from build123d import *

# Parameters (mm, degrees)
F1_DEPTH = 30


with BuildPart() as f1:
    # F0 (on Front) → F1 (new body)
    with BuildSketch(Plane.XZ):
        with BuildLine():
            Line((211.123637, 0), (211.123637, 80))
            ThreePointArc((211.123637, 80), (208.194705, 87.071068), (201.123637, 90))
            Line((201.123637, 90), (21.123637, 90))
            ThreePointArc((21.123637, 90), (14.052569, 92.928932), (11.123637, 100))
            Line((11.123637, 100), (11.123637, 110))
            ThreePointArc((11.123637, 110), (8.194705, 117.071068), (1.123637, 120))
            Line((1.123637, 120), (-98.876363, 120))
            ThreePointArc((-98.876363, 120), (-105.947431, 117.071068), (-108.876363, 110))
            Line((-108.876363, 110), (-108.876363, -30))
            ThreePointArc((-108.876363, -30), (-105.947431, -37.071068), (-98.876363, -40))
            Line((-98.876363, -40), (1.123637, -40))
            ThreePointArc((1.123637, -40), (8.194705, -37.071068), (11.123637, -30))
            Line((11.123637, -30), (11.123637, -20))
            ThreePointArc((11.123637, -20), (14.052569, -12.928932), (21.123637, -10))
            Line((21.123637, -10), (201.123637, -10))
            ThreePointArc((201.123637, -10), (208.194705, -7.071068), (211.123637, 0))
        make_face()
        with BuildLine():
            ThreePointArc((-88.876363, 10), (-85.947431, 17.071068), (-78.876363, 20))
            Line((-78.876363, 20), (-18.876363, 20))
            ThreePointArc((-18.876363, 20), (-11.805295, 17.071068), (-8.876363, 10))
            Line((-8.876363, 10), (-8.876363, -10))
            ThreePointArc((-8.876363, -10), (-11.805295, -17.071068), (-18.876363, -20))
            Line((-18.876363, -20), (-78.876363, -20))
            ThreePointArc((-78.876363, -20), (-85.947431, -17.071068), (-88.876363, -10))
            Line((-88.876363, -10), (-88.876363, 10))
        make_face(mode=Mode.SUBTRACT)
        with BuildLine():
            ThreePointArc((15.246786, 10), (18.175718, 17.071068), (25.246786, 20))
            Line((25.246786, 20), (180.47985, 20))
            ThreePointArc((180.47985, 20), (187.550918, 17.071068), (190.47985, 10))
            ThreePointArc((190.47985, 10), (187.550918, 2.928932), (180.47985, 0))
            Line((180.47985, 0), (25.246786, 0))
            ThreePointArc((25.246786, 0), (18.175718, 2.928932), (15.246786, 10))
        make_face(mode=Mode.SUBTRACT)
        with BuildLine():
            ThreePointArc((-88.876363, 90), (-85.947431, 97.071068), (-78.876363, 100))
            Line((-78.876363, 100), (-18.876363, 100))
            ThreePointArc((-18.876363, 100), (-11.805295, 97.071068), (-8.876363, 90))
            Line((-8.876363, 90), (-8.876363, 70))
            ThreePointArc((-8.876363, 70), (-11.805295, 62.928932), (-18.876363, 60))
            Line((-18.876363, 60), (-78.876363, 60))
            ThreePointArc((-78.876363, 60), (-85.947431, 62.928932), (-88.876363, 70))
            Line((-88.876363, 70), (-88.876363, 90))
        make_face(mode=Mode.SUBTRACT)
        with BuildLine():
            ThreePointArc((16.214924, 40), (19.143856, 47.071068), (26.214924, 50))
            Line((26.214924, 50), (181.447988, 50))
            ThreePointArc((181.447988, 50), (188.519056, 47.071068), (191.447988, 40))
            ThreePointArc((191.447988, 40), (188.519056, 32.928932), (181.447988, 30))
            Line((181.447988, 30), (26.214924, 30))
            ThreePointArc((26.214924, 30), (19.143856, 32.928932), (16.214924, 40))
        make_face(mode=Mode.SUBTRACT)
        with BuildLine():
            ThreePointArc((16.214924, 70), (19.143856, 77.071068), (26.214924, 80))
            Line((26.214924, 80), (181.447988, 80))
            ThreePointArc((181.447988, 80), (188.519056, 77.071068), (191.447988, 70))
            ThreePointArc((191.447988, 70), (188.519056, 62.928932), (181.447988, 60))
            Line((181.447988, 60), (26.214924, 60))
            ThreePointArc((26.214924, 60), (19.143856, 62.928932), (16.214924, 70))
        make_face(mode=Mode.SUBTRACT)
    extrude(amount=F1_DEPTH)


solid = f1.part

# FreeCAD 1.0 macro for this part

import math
import FreeCAD as App
import Part
import Sketcher

V = App.Vector
Q = App.Units.Quantity

doc = App.newDocument("Part")
body = doc.addObject("PartDesign::Body", "Body")

# Sketch on XZ plane
sketch1 = body.newObject("Sketcher::SketchObject", "Sketch")
sketch1.AttachmentSupport = (doc.getObject("XZ_Plane"), [""])
sketch1.MapMode = "FlatFace"
sketch1.addGeometry(Part.LineSegment(V(211, 0, 0), V(211, 80, 0)), False)
sketch1.addGeometry(Part.ArcOfCircle(Part.Circle(V(201, 80, 0), V(0, 0, 1), 10), math.radians(0), math.radians(90)), False)
sketch1.addGeometry(Part.LineSegment(V(201, 90, 0), V(21, 90, 0)), False)
sketch1.addGeometry(Part.ArcOfCircle(Part.Circle(V(21, 100, 0), V(0, 0, 1), 10), math.radians(180), math.radians(270)), False)
sketch1.addGeometry(Part.LineSegment(V(11, 100, 0), V(11, 110, 0)), False)
sketch1.addGeometry(Part.ArcOfCircle(Part.Circle(V(1, 110, 0), V(0, 0, 1), 10), math.radians(0), math.radians(90)), False)
sketch1.addGeometry(Part.LineSegment(V(1, 120, 0), V(-99, 120, 0)), False)
sketch1.addGeometry(Part.ArcOfCircle(Part.Circle(V(-99, 110, 0), V(0, 0, 1), 10), math.radians(90), math.radians(180)), False)
sketch1.addGeometry(Part.LineSegment(V(-109, 110, 0), V(-109, -30, 0)), False)
sketch1.addGeometry(Part.ArcOfCircle(Part.Circle(V(-99, -30, 0), V(0, 0, 1), 10), math.radians(180), math.radians(270)), False)
sketch1.addGeometry(Part.LineSegment(V(-99, -40, 0), V(1, -40, 0)), False)
sketch1.addGeometry(Part.ArcOfCircle(Part.Circle(V(1, -30, 0), V(0, 0, 1), 10), math.radians(-90), math.radians(0)), False)
sketch1.addGeometry(Part.LineSegment(V(11, -30, 0), V(11, -20, 0)), False)
sketch1.addGeometry(Part.ArcOfCircle(Part.Circle(V(21, -20, 0), V(0, 0, 1), 10), math.radians(90), math.radians(180)), False)
sketch1.addGeometry(Part.LineSegment(V(21, -10, 0), V(201, -10, 0)), False)
sketch1.addGeometry(Part.ArcOfCircle(Part.Circle(V(201, 0, 0), V(0, 0, 1), 10), math.radians(-90), math.radians(0)), False)
sketch1.addGeometry(Part.LineSegment(V(-89, -10, 0), V(-89, 10, 0)), False)
sketch1.addGeometry(Part.ArcOfCircle(Part.Circle(V(-79, 10, 0), V(0, 0, 1), 10), math.radians(90), math.radians(180)), False)
sketch1.addGeometry(Part.LineSegment(V(-79, 20, 0), V(-19, 20, 0)), False)
sketch1.addGeometry(Part.ArcOfCircle(Part.Circle(V(-19, 10, 0), V(0, 0, 1), 10), math.radians(0), math.radians(90)), False)
sketch1.addGeometry(Part.LineSegment(V(-9, 10, 0), V(-9, -10, 0)), False)
sketch1.addGeometry(Part.ArcOfCircle(Part.Circle(V(-19, -10, 0), V(0, 0, 1), 10), math.radians(-90), math.radians(0)), False)
sketch1.addGeometry(Part.LineSegment(V(-19, -20, 0), V(-79, -20, 0)), False)
sketch1.addGeometry(Part.ArcOfCircle(Part.Circle(V(-79, -10, 0), V(0, 0, 1), 10), math.radians(180), math.radians(270)), False)
sketch1.addGeometry(Part.ArcOfCircle(Part.Circle(V(25, 10, 0), V(0, 0, 1), 10), math.radians(180), math.radians(270)), False)
sketch1.addGeometry(Part.ArcOfCircle(Part.Circle(V(25, 10, 0), V(0, 0, 1), 10), math.radians(90), math.radians(180)), False)
sketch1.addGeometry(Part.LineSegment(V(25, 20, 0), V(180, 20, 0)), False)
sketch1.addGeometry(Part.ArcOfCircle(Part.Circle(V(180, 10, 0), V(0, 0, 1), 10), math.radians(0), math.radians(90)), False)
sketch1.addGeometry(Part.ArcOfCircle(Part.Circle(V(180, 10, 0), V(0, 0, 1), 10), math.radians(-90), math.radians(0)), False)
sketch1.addGeometry(Part.LineSegment(V(180, 0, 0), V(25, 0, 0)), False)
sketch1.addGeometry(Part.ArcOfCircle(Part.Circle(V(26, 40, 0), V(0, 0, 1), 10), math.radians(180), math.radians(270)), False)
sketch1.addGeometry(Part.ArcOfCircle(Part.Circle(V(26, 40, 0), V(0, 0, 1), 10), math.radians(90), math.radians(180)), False)
sketch1.addGeometry(Part.LineSegment(V(26, 50, 0), V(181, 50, 0)), False)
sketch1.addGeometry(Part.ArcOfCircle(Part.Circle(V(181, 40, 0), V(0, 0, 1), 10), math.radians(0), math.radians(90)), False)
sketch1.addGeometry(Part.ArcOfCircle(Part.Circle(V(181, 40, 0), V(0, 0, 1), 10), math.radians(-90), math.radians(0)), False)
sketch1.addGeometry(Part.LineSegment(V(181, 30, 0), V(26, 30, 0)), False)
sketch1.addGeometry(Part.LineSegment(V(-89, 70, 0), V(-89, 90, 0)), False)
sketch1.addGeometry(Part.ArcOfCircle(Part.Circle(V(-79, 90, 0), V(0, 0, 1), 10), math.radians(90), math.radians(180)), False)
sketch1.addGeometry(Part.LineSegment(V(-79, 100, 0), V(-19, 100, 0)), False)
sketch1.addGeometry(Part.ArcOfCircle(Part.Circle(V(-19, 90, 0), V(0, 0, 1), 10), math.radians(0), math.radians(90)), False)
sketch1.addGeometry(Part.LineSegment(V(-9, 90, 0), V(-9, 70, 0)), False)
sketch1.addGeometry(Part.ArcOfCircle(Part.Circle(V(-19, 70, 0), V(0, 0, 1), 10), math.radians(-90), math.radians(0)), False)
sketch1.addGeometry(Part.LineSegment(V(-19, 60, 0), V(-79, 60, 0)), False)
sketch1.addGeometry(Part.ArcOfCircle(Part.Circle(V(-79, 70, 0), V(0, 0, 1), 10), math.radians(180), math.radians(270)), False)
sketch1.addGeometry(Part.ArcOfCircle(Part.Circle(V(26, 70, 0), V(0, 0, 1), 10), math.radians(180), math.radians(270)), False)
sketch1.addGeometry(Part.ArcOfCircle(Part.Circle(V(26, 70, 0), V(0, 0, 1), 10), math.radians(90), math.radians(180)), False)
sketch1.addGeometry(Part.LineSegment(V(26, 80, 0), V(181, 80, 0)), False)
sketch1.addGeometry(Part.ArcOfCircle(Part.Circle(V(181, 70, 0), V(0, 0, 1), 10), math.radians(0), math.radians(90)), False)
sketch1.addGeometry(Part.ArcOfCircle(Part.Circle(V(181, 70, 0), V(0, 0, 1), 10), math.radians(-90), math.radians(0)), False)
sketch1.addGeometry(Part.LineSegment(V(181, 60, 0), V(26, 60, 0)), False)
sketch1.addConstraint(Sketcher.Constraint("Tangent", 0, 2, 1, 1))
sketch1.addConstraint(Sketcher.Constraint("Tangent", 1, 2, 2, 1))
sketch1.addConstraint(Sketcher.Constraint("Tangent", 2, 2, 3, 2))
sketch1.addConstraint(Sketcher.Constraint("Tangent", 3, 1, 4, 1))
sketch1.addConstraint(Sketcher.Constraint("Tangent", 4, 2, 5, 1))
sketch1.addConstraint(Sketcher.Constraint("Tangent", 5, 2, 6, 1))
sketch1.addConstraint(Sketcher.Constraint("Tangent", 6, 2, 7, 1))
sketch1.addConstraint(Sketcher.Constraint("Tangent", 7, 2, 8, 1))
sketch1.addConstraint(Sketcher.Constraint("Tangent", 8, 2, 9, 1))
sketch1.addConstraint(Sketcher.Constraint("Tangent", 9, 2, 10, 1))
sketch1.addConstraint(Sketcher.Constraint("Tangent", 10, 2, 11, 1))
sketch1.addConstraint(Sketcher.Constraint("Tangent", 11, 2, 12, 1))
sketch1.addConstraint(Sketcher.Constraint("Tangent", 12, 2, 13, 2))
sketch1.addConstraint(Sketcher.Constraint("Tangent", 13, 1, 14, 1))
sketch1.addConstraint(Sketcher.Constraint("Tangent", 14, 2, 15, 1))
sketch1.addConstraint(Sketcher.Constraint("Tangent", 15, 2, 0, 1))
sketch1.addConstraint(Sketcher.Constraint("Tangent", 16, 2, 17, 2))
sketch1.addConstraint(Sketcher.Constraint("Tangent", 17, 1, 18, 1))
sketch1.addConstraint(Sketcher.Constraint("Tangent", 18, 2, 19, 2))
sketch1.addConstraint(Sketcher.Constraint("Tangent", 19, 1, 20, 1))
sketch1.addConstraint(Sketcher.Constraint("Tangent", 20, 2, 21, 2))
sketch1.addConstraint(Sketcher.Constraint("Tangent", 21, 1, 22, 1))
sketch1.addConstraint(Sketcher.Constraint("Tangent", 22, 2, 23, 2))
sketch1.addConstraint(Sketcher.Constraint("Tangent", 23, 1, 16, 1))
sketch1.addConstraint(Sketcher.Constraint("Tangent", 24, 1, 25, 2))
sketch1.addConstraint(Sketcher.Constraint("Tangent", 25, 1, 26, 1))
sketch1.addConstraint(Sketcher.Constraint("Tangent", 26, 2, 27, 2))
sketch1.addConstraint(Sketcher.Constraint("Tangent", 27, 1, 28, 2))
sketch1.addConstraint(Sketcher.Constraint("Tangent", 28, 1, 29, 1))
sketch1.addConstraint(Sketcher.Constraint("Tangent", 29, 2, 24, 2))
sketch1.addConstraint(Sketcher.Constraint("Tangent", 30, 1, 31, 2))
sketch1.addConstraint(Sketcher.Constraint("Tangent", 31, 1, 32, 1))
sketch1.addConstraint(Sketcher.Constraint("Tangent", 32, 2, 33, 2))
sketch1.addConstraint(Sketcher.Constraint("Tangent", 33, 1, 34, 2))
sketch1.addConstraint(Sketcher.Constraint("Tangent", 34, 1, 35, 1))
sketch1.addConstraint(Sketcher.Constraint("Tangent", 35, 2, 30, 2))
sketch1.addConstraint(Sketcher.Constraint("Tangent", 36, 2, 37, 2))
sketch1.addConstraint(Sketcher.Constraint("Tangent", 37, 1, 38, 1))
sketch1.addConstraint(Sketcher.Constraint("Tangent", 38, 2, 39, 2))
sketch1.addConstraint(Sketcher.Constraint("Tangent", 39, 1, 40, 1))
sketch1.addConstraint(Sketcher.Constraint("Tangent", 40, 2, 41, 2))
sketch1.addConstraint(Sketcher.Constraint("Tangent", 41, 1, 42, 1))
sketch1.addConstraint(Sketcher.Constraint("Tangent", 42, 2, 43, 2))
sketch1.addConstraint(Sketcher.Constraint("Tangent", 43, 1, 36, 1))
sketch1.addConstraint(Sketcher.Constraint("Tangent", 44, 1, 45, 2))
sketch1.addConstraint(Sketcher.Constraint("Tangent", 45, 1, 46, 1))
sketch1.addConstraint(Sketcher.Constraint("Tangent", 46, 2, 47, 2))
sketch1.addConstraint(Sketcher.Constraint("Tangent", 47, 1, 48, 2))
sketch1.addConstraint(Sketcher.Constraint("Tangent", 48, 1, 49, 1))
sketch1.addConstraint(Sketcher.Constraint("Tangent", 49, 2, 44, 2))
sketch1.addConstraint(Sketcher.Constraint("Vertical", 0))
sketch1.addConstraint(Sketcher.Constraint("Horizontal", 2))
sketch1.addConstraint(Sketcher.Constraint("Vertical", 4))
sketch1.addConstraint(Sketcher.Constraint("Horizontal", 6))
sketch1.addConstraint(Sketcher.Constraint("Vertical", 8))
sketch1.addConstraint(Sketcher.Constraint("Horizontal", 10))
sketch1.addConstraint(Sketcher.Constraint("Vertical", 12))
sketch1.addConstraint(Sketcher.Constraint("Horizontal", 14))
sketch1.addConstraint(Sketcher.Constraint("Vertical", 16))
sketch1.addConstraint(Sketcher.Constraint("Horizontal", 18))
sketch1.addConstraint(Sketcher.Constraint("Vertical", 20))
sketch1.addConstraint(Sketcher.Constraint("Horizontal", 22))
sketch1.addConstraint(Sketcher.Constraint("Horizontal", 26))
sketch1.addConstraint(Sketcher.Constraint("Horizontal", 29))
sketch1.addConstraint(Sketcher.Constraint("Horizontal", 32))
sketch1.addConstraint(Sketcher.Constraint("Horizontal", 35))
sketch1.addConstraint(Sketcher.Constraint("Vertical", 36))
sketch1.addConstraint(Sketcher.Constraint("Horizontal", 38))
sketch1.addConstraint(Sketcher.Constraint("Vertical", 40))
sketch1.addConstraint(Sketcher.Constraint("Horizontal", 42))
sketch1.addConstraint(Sketcher.Constraint("Horizontal", 46))
sketch1.addConstraint(Sketcher.Constraint("Horizontal", 49))
sketch1.addConstraint(Sketcher.Constraint("Equal", 1, 3))
sketch1.addConstraint(Sketcher.Constraint("Equal", 3, 5))
sketch1.addConstraint(Sketcher.Constraint("Equal", 5, 7))
sketch1.addConstraint(Sketcher.Constraint("Equal", 7, 9))
sketch1.addConstraint(Sketcher.Constraint("Equal", 9, 11))
sketch1.addConstraint(Sketcher.Constraint("Equal", 11, 13))
sketch1.addConstraint(Sketcher.Constraint("Equal", 13, 15))
sketch1.addConstraint(Sketcher.Constraint("Equal", 15, 17))
sketch1.addConstraint(Sketcher.Constraint("Equal", 17, 19))
sketch1.addConstraint(Sketcher.Constraint("Equal", 19, 21))
sketch1.addConstraint(Sketcher.Constraint("Equal", 21, 23))
sketch1.addConstraint(Sketcher.Constraint("Equal", 23, 24))
sketch1.addConstraint(Sketcher.Constraint("Equal", 24, 25))
sketch1.addConstraint(Sketcher.Constraint("Equal", 25, 27))
sketch1.addConstraint(Sketcher.Constraint("Equal", 28, 30))
sketch1.addConstraint(Sketcher.Constraint("Equal", 30, 31))
sketch1.addConstraint(Sketcher.Constraint("Equal", 31, 33))
sketch1.addConstraint(Sketcher.Constraint("Equal", 34, 37))
sketch1.addConstraint(Sketcher.Constraint("Equal", 37, 39))
sketch1.addConstraint(Sketcher.Constraint("Equal", 39, 41))
sketch1.addConstraint(Sketcher.Constraint("Equal", 41, 43))
sketch1.addConstraint(Sketcher.Constraint("Equal", 43, 44))
sketch1.addConstraint(Sketcher.Constraint("Equal", 44, 45))
sketch1.addConstraint(Sketcher.Constraint("Equal", 45, 47))
sketch1.addConstraint(Sketcher.Constraint("PointOnObject", 15, 3, -1))
sketch1.addConstraint(Sketcher.Constraint("PointOnObject", 28, 1, -1))
sketch1.addConstraint(Sketcher.Constraint("Horizontal", 19, 3, 24, 3))
sketch1.addConstraint(Sketcher.Constraint("Horizontal", 43, 3, 44, 3))
sketch1.addConstraint(Sketcher.Constraint("Horizontal", 39, 3, 1, 2))
sketch1.addConstraint(Sketcher.Constraint("Horizontal", 23, 3, 13, 1))
sketch1.addConstraint(Sketcher.Constraint("Horizontal", 19, 1, 24, 1))
sketch1.addConstraint(Sketcher.Constraint("Horizontal", 24, 1, 27, 1))
sketch1.addConstraint(Sketcher.Constraint("Horizontal", 34, 3, 30, 1))
sketch1.addConstraint(Sketcher.Constraint("Horizontal", 30, 1, 33, 1))
sketch1.addConstraint(Sketcher.Constraint("Horizontal", 43, 1, 44, 1))
sketch1.addConstraint(Sketcher.Constraint("Horizontal", 0, 2, 45, 1))
sketch1.addConstraint(Sketcher.Constraint("Horizontal", 44, 1, 47, 1))
sketch1.addConstraint(Sketcher.Constraint("Vertical", 5, 3, 11, 3))
sketch1.addConstraint(Sketcher.Constraint("Vertical", 23, 3, 37, 3))
sketch1.addConstraint(Sketcher.Constraint("Vertical", 21, 3, 39, 3))
sketch1.addConstraint(Sketcher.Constraint("Vertical", 31, 3, 44, 3))
sketch1.addConstraint(Sketcher.Constraint("Vertical", 34, 3, 47, 3))
sketch1.addConstraint(Sketcher.Constraint("Equal", 29, 32))
sketch1.addConstraint(Sketcher.Constraint("Equal", 4, 12))
sketch1.addConstraint(Sketcher.Constraint("Radius", 1, Q("9.999999 mm")))
sketch1.addConstraint(Sketcher.Constraint("DistanceX", 2, 2, 2, 1, Q("180 mm")))
sketch1.addConstraint(Sketcher.Constraint("DistanceX", 6, 2, 6, 1, Q("100 mm")))
sketch1.addConstraint(Sketcher.Constraint("DistanceX", 18, 1, 18, 2, Q("60 mm")))
sketch1.addConstraint(Sketcher.Constraint("DistanceY", 0, 1, 0, 2, Q("80 mm")))
sketch1.addConstraint(Sketcher.Constraint("DistanceY", 4, 1, 4, 2, Q("10 mm")))
sketch1.addConstraint(Sketcher.Constraint("DistanceY", -1, 1, 30, 3, Q("39.999999 mm")))
sketch1.addConstraint(Sketcher.Constraint("DistanceX", 26, 1, 26, 2, Q("155.233064 mm")))
sketch1.addConstraint(Sketcher.Constraint("DistanceX", -1, 1, 27, 3, Q("180.479851 mm")))
sketch1.addConstraint(Sketcher.Constraint("DistanceX", -1, 1, 33, 3, Q("181.447989 mm")))
sketch1.addConstraint(Sketcher.Constraint("DistanceX", -1, 1, 1, 3, Q("201.123638 mm")))
sketch1.addConstraint(Sketcher.Constraint("DistanceX", 17, 3, -1, 1, Q("78.876364 mm")))
pad1 = body.newObject("PartDesign::Pad", "Pad")
pad1.Profile = sketch1
pad1.Length = 30

doc.recompute()
